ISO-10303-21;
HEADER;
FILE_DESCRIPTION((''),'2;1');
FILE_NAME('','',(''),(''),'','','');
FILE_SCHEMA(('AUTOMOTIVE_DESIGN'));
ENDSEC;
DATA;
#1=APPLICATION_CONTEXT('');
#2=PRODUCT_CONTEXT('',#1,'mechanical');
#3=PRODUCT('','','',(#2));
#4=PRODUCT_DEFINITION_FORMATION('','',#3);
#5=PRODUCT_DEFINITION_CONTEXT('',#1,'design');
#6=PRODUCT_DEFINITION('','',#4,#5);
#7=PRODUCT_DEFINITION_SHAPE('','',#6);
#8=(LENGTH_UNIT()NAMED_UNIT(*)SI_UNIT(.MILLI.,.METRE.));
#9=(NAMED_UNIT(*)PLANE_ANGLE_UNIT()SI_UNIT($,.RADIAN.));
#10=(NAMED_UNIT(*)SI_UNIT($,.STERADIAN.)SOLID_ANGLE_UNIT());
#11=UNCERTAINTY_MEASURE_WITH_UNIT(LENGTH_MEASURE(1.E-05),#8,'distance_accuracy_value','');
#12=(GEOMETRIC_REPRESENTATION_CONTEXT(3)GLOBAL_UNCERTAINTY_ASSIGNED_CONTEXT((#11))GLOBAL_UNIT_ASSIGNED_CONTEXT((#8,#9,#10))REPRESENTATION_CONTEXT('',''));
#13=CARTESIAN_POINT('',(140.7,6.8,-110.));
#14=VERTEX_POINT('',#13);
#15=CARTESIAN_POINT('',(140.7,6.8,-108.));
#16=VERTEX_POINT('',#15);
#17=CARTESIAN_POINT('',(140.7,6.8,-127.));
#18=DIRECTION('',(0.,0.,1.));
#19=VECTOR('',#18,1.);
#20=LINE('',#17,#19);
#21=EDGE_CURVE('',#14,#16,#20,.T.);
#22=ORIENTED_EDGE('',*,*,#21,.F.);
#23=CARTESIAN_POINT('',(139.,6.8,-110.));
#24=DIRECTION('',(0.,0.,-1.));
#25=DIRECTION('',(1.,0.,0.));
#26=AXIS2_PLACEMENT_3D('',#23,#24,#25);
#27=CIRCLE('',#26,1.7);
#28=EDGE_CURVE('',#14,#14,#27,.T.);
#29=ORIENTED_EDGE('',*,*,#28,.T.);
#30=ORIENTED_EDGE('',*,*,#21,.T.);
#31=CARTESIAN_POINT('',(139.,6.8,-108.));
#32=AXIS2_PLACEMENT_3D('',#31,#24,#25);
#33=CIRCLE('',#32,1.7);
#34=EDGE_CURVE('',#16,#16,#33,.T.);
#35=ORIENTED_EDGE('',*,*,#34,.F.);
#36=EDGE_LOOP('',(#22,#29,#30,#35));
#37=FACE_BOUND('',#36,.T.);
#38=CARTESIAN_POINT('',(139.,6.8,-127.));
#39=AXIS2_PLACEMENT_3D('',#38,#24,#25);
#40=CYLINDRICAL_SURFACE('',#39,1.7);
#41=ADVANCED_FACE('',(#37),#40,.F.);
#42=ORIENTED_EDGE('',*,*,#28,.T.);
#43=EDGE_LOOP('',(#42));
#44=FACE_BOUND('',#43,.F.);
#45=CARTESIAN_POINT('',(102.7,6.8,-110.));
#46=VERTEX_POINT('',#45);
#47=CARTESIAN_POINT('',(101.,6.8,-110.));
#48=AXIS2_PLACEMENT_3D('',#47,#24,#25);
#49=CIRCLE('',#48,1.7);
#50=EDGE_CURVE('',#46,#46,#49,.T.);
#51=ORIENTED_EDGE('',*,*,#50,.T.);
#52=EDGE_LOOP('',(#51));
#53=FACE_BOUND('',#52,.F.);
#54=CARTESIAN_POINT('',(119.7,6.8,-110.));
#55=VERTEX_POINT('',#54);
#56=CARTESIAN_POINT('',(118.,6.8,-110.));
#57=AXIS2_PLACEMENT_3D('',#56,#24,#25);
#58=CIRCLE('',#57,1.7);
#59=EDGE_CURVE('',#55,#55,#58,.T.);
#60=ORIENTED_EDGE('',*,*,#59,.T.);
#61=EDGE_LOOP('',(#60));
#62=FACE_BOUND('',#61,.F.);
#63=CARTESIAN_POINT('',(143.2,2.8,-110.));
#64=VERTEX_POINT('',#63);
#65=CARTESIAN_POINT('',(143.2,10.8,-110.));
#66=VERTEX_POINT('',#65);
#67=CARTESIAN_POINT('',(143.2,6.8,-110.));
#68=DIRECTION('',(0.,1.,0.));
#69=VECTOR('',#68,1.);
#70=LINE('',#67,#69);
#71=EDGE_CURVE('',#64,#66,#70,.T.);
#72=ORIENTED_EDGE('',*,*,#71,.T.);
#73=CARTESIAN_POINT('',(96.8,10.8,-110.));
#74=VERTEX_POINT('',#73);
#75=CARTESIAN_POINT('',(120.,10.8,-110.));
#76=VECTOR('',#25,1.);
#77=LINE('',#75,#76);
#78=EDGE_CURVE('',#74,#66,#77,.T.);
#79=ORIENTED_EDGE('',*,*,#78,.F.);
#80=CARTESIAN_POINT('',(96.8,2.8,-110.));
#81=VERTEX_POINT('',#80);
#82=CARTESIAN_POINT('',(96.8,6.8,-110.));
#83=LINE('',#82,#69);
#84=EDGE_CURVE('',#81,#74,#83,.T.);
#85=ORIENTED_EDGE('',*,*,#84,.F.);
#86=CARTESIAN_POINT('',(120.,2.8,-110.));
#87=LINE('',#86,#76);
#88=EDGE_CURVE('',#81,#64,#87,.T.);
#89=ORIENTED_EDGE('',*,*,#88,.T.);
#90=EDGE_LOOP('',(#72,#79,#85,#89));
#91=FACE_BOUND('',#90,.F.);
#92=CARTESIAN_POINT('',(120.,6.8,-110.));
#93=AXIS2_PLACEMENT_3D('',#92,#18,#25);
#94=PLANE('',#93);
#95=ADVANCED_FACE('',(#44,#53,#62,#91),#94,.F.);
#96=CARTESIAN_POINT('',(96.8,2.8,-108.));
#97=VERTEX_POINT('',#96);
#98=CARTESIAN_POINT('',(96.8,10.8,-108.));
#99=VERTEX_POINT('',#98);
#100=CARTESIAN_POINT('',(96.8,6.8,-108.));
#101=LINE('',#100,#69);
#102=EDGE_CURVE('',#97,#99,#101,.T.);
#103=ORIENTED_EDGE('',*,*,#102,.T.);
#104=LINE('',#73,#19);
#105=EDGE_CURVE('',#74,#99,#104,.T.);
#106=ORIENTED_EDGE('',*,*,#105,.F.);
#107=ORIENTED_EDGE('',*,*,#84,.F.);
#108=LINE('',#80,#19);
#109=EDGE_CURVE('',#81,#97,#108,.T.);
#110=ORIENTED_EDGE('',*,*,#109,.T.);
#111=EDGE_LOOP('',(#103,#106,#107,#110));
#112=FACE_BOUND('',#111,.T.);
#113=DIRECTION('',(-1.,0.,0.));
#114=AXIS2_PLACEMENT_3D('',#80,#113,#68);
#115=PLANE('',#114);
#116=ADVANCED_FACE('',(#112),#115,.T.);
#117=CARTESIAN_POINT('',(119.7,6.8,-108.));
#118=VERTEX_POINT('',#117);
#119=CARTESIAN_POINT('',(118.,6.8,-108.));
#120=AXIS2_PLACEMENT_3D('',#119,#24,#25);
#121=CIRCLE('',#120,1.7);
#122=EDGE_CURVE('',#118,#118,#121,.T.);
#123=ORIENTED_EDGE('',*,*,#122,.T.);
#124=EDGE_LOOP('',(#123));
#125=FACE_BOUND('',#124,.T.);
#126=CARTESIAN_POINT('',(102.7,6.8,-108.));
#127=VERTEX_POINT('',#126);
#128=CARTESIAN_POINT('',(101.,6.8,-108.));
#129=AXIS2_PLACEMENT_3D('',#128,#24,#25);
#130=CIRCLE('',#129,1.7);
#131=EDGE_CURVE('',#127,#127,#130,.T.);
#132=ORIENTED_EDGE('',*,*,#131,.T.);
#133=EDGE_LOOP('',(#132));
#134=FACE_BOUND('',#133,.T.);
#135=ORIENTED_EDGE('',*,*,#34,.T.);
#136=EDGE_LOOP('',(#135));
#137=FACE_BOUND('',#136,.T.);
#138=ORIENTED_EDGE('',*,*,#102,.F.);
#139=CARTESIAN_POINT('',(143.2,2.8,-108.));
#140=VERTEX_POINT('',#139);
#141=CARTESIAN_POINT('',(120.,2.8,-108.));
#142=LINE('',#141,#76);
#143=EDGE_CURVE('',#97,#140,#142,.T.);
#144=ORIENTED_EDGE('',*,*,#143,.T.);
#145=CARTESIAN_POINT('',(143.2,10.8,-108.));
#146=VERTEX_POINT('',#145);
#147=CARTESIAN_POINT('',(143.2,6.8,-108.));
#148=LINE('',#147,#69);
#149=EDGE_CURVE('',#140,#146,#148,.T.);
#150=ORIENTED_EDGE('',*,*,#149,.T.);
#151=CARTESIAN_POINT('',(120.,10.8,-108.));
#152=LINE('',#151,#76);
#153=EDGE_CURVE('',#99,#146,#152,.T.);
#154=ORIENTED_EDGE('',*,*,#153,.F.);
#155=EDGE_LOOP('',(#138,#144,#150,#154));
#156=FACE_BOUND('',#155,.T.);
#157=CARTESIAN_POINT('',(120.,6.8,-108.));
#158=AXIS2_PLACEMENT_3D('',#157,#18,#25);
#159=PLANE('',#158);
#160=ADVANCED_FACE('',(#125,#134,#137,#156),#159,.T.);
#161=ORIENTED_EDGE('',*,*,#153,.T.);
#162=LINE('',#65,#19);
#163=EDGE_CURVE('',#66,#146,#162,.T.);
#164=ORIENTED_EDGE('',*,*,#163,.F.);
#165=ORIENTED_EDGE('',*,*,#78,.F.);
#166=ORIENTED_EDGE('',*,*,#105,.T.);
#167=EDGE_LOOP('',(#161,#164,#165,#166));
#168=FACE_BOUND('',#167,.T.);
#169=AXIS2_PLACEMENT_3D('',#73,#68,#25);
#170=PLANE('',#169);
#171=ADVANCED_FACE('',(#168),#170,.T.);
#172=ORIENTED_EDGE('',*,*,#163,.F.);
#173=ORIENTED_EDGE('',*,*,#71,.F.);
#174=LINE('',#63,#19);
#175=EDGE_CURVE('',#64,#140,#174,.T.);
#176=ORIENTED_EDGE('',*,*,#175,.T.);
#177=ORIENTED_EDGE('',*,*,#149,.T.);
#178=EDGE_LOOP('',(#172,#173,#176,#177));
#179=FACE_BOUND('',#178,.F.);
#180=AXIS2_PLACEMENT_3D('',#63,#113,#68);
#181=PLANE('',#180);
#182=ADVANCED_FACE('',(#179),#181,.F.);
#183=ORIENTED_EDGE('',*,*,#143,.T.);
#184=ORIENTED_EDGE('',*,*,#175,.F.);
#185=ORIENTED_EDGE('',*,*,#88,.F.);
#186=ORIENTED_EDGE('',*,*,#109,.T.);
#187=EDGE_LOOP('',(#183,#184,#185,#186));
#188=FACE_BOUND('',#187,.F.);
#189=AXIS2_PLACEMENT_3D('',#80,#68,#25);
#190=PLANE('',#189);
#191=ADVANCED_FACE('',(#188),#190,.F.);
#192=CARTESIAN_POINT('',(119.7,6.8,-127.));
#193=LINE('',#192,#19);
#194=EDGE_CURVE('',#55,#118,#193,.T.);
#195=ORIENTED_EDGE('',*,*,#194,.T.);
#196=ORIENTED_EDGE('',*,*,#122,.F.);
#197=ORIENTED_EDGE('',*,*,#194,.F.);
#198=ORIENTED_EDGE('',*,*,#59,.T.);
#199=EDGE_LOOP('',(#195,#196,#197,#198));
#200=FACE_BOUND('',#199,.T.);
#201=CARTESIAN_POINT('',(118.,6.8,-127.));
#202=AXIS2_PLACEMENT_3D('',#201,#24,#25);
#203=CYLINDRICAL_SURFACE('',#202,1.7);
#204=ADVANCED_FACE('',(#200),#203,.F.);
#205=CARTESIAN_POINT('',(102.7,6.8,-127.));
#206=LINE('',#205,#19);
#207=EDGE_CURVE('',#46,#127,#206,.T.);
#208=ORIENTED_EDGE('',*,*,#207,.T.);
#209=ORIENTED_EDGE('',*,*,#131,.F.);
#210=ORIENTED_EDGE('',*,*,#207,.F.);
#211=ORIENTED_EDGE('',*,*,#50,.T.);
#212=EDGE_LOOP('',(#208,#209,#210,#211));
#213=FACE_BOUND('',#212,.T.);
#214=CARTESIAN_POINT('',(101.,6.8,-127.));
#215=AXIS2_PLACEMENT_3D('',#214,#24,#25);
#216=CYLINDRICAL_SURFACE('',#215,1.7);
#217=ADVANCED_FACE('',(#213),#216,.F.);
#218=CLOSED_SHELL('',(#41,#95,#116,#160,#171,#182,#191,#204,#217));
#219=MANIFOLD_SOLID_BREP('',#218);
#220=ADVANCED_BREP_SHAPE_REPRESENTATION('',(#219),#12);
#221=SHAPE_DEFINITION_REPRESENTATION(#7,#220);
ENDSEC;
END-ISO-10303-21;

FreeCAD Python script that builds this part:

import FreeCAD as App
import Part
import Sketcher

V = App.Vector

doc = App.newDocument("Part")
body = doc.addObject("PartDesign::Body", "Body")

sketch1 = body.newObject("Sketcher::SketchObject", "Sketch")
sketch1.AttachmentSupport = (doc.getObject("XY_Plane"), [""])
sketch1.MapMode = "FlatFace"
sketch1.AttachmentOffset = App.Placement(V(0, 0, -127), App.Rotation())
sketch1.addGeometry(Part.Circle(V(139, 6.8, 0), V(0, 0, 1), 1.7), False)
sketch1.addConstraint([
    Sketcher.Constraint("Diameter", 0, 3.4),
    Sketcher.Constraint("DistanceX", -1, 1, 0, 3, 139.0),
    Sketcher.Constraint("DistanceY", -1, 1, 0, 3, 6.8),
])
pad1 = body.newObject("PartDesign::Pad", "Pad")
pad1.Profile = sketch1
pad1.Length = 30
body2 = doc.addObject("PartDesign::Body", "Body001")

sketch2 = body2.newObject("Sketcher::SketchObject", "Sketch001")
sketch2.AttachmentSupport = (doc.getObject("XY_Plane001"), [""])
sketch2.MapMode = "FlatFace"
sketch2.AttachmentOffset = App.Placement(V(0, 0, -127), App.Rotation())
sketch2.addGeometry(Part.Circle(V(118, 6.8, 0), V(0, 0, 1), 1.7), False)
sketch2.addConstraint([
    Sketcher.Constraint("Diameter", 0, 3.4),
    Sketcher.Constraint("DistanceX", -1, 1, 0, 3, 118.0),
    Sketcher.Constraint("DistanceY", -1, 1, 0, 3, 6.8),
])
pad2 = body2.newObject("PartDesign::Pad", "Pad001")
pad2.Profile = sketch2
pad2.Length = 30
body3 = doc.addObject("PartDesign::Body", "Body002")

sketch3 = body3.newObject("Sketcher::SketchObject", "Sketch002")
sketch3.AttachmentSupport = (doc.getObject("XY_Plane002"), [""])
sketch3.MapMode = "FlatFace"
sketch3.AttachmentOffset = App.Placement(V(0, 0, -127), App.Rotation())
sketch3.addGeometry(Part.Circle(V(101, 6.8, 0), V(0, 0, 1), 1.7), False)
sketch3.addConstraint([
    Sketcher.Constraint("Diameter", 0, 3.4),
    Sketcher.Constraint("DistanceX", -1, 1, 0, 3, 101.0),
    Sketcher.Constraint("DistanceY", -1, 1, 0, 3, 6.8),
])
pad3 = body3.newObject("PartDesign::Pad", "Pad002")
pad3.Profile = sketch3
pad3.Length = 30
body4 = doc.addObject("PartDesign::Body", "Body003")

sketch4 = body4.newObject("Sketcher::SketchObject", "Sketch003")
sketch4.AttachmentSupport = (doc.getObject("XY_Plane003"), [""])
sketch4.MapMode = "FlatFace"
sketch4.AttachmentOffset = App.Placement(V(0, 0, -110), App.Rotation())
sketch4.addGeometry([
    Part.LineSegment(V(97, 11, 0), V(97, 3, 0)),
    Part.LineSegment(V(97, 3, 0), V(143, 3, 0)),
    Part.LineSegment(V(143, 3, 0), V(143, 11, 0)),
    Part.LineSegment(V(143, 11, 0), V(97, 11, 0)),
], False)
sketch4.addConstraint([
    Sketcher.Constraint("Coincident", 0, 2, 1, 1),
    Sketcher.Constraint("Coincident", 1, 2, 2, 1),
    Sketcher.Constraint("Coincident", 2, 2, 3, 1),
    Sketcher.Constraint("Coincident", 3, 2, 0, 1),
    Sketcher.Constraint("Vertical", 0),
    Sketcher.Constraint("Horizontal", 1),
    Sketcher.Constraint("Vertical", 2),
    Sketcher.Constraint("Horizontal", 3),
    Sketcher.Constraint("DistanceY", 0, 2, 0, 1, 8.0),
    Sketcher.Constraint("DistanceX", 1, 1, 1, 2, 46.4),
    Sketcher.Constraint("DistanceX", -1, 1, 0, 2, 96.8),
    Sketcher.Constraint("DistanceY", -1, 1, 0, 2, 2.8),
])
pad4 = body4.newObject("PartDesign::Pad", "Pad003")
pad4.Profile = sketch4
pad4.Length = 2
doc.recompute()

boolean = body4.newObject("PartDesign::Boolean", "Boolean")
boolean.Type = "Cut"
boolean.addObjects([body3])
doc.recompute()

boolean2 = body4.newObject("PartDesign::Boolean", "Boolean001")
boolean2.Type = "Cut"
boolean2.addObjects([body2])
doc.recompute()

boolean3 = body4.newObject("PartDesign::Boolean", "Boolean002")
boolean3.Type = "Cut"
boolean3.addObjects([body])

doc.recompute()
